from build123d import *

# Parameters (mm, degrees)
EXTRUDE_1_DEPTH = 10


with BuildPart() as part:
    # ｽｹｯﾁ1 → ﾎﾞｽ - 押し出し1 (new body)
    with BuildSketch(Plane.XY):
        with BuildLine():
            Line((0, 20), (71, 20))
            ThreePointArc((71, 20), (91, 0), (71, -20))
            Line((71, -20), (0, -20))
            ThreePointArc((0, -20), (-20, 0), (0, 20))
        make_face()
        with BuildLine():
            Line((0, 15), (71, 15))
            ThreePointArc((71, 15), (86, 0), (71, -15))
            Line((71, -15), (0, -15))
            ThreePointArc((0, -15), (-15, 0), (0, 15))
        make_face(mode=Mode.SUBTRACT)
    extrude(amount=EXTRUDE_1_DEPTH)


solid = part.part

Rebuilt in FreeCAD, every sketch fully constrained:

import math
import FreeCAD as App
import Part
import Sketcher

V = App.Vector

doc = App.newDocument("Part")
body = doc.addObject("PartDesign::Body", "Body")

sketch1 = doc.addObject("Sketcher::SketchObject", "Sketch")
body.addObject(sketch1)
sketch1.AttachmentSupport = (doc.XY_Plane, [""])
sketch1.MapMode = "FlatFace"
sketch1.addGeometry([
    Part.LineSegment(V(71, 20, 0), V(0, 20, 0)),
    Part.ArcOfCircle(Part.Circle(V(0, 0, 0), V(0, 0, 1), 20), math.radians(90), math.radians(270)),
    Part.LineSegment(V(0, -20, 0), V(71, -20, 0)),
    Part.ArcOfCircle(Part.Circle(V(71, 0, 0), V(0, 0, 1), 20), math.radians(-90), math.radians(90)),
    Part.LineSegment(V(0, 15, 0), V(71, 15, 0)),
    Part.ArcOfCircle(Part.Circle(V(71, 0, 0), V(0, 0, 1), 15), math.radians(-90), math.radians(90)),
    Part.LineSegment(V(71, -15, 0), V(0, -15, 0)),
    Part.ArcOfCircle(Part.Circle(V(0, 0, 0), V(0, 0, 1), 15), math.radians(90), math.radians(270)),
], False)
sketch1.addConstraint([
    Sketcher.Constraint("Tangent", 0, 2, 1, 1),
    Sketcher.Constraint("Tangent", 1, 2, 2, 1),
    Sketcher.Constraint("Tangent", 2, 2, 3, 1),
    Sketcher.Constraint("Tangent", 3, 2, 0, 1),
    Sketcher.Constraint("Tangent", 4, 2, 5, 2),
    Sketcher.Constraint("Tangent", 5, 1, 6, 1),
    Sketcher.Constraint("Tangent", 6, 2, 7, 2),
    Sketcher.Constraint("Tangent", 7, 1, 4, 1),
    Sketcher.Constraint("Horizontal", 0),
    Sketcher.Constraint("Horizontal", 2),
    Sketcher.Constraint("Horizontal", 4),
    Sketcher.Constraint("Horizontal", 6),
    Sketcher.Constraint("Coincident", 1, 3, -1, 1),
    Sketcher.Constraint("Coincident", 7, 3, -1, 1),
    Sketcher.Constraint("Vertical", 5, 3, 2, 2),
    Sketcher.Constraint("Radius", 1, 20.0),
    Sketcher.Constraint("Radius", 5, 15.0),
    Sketcher.Constraint("DistanceX", 0, 2, 0, 1, 71.0),
])
pad1 = doc.addObject("PartDesign::Pad", "Pad")
body.addObject(pad1)
pad1.Profile = sketch1
pad1.Length = 10

doc.recompute()
